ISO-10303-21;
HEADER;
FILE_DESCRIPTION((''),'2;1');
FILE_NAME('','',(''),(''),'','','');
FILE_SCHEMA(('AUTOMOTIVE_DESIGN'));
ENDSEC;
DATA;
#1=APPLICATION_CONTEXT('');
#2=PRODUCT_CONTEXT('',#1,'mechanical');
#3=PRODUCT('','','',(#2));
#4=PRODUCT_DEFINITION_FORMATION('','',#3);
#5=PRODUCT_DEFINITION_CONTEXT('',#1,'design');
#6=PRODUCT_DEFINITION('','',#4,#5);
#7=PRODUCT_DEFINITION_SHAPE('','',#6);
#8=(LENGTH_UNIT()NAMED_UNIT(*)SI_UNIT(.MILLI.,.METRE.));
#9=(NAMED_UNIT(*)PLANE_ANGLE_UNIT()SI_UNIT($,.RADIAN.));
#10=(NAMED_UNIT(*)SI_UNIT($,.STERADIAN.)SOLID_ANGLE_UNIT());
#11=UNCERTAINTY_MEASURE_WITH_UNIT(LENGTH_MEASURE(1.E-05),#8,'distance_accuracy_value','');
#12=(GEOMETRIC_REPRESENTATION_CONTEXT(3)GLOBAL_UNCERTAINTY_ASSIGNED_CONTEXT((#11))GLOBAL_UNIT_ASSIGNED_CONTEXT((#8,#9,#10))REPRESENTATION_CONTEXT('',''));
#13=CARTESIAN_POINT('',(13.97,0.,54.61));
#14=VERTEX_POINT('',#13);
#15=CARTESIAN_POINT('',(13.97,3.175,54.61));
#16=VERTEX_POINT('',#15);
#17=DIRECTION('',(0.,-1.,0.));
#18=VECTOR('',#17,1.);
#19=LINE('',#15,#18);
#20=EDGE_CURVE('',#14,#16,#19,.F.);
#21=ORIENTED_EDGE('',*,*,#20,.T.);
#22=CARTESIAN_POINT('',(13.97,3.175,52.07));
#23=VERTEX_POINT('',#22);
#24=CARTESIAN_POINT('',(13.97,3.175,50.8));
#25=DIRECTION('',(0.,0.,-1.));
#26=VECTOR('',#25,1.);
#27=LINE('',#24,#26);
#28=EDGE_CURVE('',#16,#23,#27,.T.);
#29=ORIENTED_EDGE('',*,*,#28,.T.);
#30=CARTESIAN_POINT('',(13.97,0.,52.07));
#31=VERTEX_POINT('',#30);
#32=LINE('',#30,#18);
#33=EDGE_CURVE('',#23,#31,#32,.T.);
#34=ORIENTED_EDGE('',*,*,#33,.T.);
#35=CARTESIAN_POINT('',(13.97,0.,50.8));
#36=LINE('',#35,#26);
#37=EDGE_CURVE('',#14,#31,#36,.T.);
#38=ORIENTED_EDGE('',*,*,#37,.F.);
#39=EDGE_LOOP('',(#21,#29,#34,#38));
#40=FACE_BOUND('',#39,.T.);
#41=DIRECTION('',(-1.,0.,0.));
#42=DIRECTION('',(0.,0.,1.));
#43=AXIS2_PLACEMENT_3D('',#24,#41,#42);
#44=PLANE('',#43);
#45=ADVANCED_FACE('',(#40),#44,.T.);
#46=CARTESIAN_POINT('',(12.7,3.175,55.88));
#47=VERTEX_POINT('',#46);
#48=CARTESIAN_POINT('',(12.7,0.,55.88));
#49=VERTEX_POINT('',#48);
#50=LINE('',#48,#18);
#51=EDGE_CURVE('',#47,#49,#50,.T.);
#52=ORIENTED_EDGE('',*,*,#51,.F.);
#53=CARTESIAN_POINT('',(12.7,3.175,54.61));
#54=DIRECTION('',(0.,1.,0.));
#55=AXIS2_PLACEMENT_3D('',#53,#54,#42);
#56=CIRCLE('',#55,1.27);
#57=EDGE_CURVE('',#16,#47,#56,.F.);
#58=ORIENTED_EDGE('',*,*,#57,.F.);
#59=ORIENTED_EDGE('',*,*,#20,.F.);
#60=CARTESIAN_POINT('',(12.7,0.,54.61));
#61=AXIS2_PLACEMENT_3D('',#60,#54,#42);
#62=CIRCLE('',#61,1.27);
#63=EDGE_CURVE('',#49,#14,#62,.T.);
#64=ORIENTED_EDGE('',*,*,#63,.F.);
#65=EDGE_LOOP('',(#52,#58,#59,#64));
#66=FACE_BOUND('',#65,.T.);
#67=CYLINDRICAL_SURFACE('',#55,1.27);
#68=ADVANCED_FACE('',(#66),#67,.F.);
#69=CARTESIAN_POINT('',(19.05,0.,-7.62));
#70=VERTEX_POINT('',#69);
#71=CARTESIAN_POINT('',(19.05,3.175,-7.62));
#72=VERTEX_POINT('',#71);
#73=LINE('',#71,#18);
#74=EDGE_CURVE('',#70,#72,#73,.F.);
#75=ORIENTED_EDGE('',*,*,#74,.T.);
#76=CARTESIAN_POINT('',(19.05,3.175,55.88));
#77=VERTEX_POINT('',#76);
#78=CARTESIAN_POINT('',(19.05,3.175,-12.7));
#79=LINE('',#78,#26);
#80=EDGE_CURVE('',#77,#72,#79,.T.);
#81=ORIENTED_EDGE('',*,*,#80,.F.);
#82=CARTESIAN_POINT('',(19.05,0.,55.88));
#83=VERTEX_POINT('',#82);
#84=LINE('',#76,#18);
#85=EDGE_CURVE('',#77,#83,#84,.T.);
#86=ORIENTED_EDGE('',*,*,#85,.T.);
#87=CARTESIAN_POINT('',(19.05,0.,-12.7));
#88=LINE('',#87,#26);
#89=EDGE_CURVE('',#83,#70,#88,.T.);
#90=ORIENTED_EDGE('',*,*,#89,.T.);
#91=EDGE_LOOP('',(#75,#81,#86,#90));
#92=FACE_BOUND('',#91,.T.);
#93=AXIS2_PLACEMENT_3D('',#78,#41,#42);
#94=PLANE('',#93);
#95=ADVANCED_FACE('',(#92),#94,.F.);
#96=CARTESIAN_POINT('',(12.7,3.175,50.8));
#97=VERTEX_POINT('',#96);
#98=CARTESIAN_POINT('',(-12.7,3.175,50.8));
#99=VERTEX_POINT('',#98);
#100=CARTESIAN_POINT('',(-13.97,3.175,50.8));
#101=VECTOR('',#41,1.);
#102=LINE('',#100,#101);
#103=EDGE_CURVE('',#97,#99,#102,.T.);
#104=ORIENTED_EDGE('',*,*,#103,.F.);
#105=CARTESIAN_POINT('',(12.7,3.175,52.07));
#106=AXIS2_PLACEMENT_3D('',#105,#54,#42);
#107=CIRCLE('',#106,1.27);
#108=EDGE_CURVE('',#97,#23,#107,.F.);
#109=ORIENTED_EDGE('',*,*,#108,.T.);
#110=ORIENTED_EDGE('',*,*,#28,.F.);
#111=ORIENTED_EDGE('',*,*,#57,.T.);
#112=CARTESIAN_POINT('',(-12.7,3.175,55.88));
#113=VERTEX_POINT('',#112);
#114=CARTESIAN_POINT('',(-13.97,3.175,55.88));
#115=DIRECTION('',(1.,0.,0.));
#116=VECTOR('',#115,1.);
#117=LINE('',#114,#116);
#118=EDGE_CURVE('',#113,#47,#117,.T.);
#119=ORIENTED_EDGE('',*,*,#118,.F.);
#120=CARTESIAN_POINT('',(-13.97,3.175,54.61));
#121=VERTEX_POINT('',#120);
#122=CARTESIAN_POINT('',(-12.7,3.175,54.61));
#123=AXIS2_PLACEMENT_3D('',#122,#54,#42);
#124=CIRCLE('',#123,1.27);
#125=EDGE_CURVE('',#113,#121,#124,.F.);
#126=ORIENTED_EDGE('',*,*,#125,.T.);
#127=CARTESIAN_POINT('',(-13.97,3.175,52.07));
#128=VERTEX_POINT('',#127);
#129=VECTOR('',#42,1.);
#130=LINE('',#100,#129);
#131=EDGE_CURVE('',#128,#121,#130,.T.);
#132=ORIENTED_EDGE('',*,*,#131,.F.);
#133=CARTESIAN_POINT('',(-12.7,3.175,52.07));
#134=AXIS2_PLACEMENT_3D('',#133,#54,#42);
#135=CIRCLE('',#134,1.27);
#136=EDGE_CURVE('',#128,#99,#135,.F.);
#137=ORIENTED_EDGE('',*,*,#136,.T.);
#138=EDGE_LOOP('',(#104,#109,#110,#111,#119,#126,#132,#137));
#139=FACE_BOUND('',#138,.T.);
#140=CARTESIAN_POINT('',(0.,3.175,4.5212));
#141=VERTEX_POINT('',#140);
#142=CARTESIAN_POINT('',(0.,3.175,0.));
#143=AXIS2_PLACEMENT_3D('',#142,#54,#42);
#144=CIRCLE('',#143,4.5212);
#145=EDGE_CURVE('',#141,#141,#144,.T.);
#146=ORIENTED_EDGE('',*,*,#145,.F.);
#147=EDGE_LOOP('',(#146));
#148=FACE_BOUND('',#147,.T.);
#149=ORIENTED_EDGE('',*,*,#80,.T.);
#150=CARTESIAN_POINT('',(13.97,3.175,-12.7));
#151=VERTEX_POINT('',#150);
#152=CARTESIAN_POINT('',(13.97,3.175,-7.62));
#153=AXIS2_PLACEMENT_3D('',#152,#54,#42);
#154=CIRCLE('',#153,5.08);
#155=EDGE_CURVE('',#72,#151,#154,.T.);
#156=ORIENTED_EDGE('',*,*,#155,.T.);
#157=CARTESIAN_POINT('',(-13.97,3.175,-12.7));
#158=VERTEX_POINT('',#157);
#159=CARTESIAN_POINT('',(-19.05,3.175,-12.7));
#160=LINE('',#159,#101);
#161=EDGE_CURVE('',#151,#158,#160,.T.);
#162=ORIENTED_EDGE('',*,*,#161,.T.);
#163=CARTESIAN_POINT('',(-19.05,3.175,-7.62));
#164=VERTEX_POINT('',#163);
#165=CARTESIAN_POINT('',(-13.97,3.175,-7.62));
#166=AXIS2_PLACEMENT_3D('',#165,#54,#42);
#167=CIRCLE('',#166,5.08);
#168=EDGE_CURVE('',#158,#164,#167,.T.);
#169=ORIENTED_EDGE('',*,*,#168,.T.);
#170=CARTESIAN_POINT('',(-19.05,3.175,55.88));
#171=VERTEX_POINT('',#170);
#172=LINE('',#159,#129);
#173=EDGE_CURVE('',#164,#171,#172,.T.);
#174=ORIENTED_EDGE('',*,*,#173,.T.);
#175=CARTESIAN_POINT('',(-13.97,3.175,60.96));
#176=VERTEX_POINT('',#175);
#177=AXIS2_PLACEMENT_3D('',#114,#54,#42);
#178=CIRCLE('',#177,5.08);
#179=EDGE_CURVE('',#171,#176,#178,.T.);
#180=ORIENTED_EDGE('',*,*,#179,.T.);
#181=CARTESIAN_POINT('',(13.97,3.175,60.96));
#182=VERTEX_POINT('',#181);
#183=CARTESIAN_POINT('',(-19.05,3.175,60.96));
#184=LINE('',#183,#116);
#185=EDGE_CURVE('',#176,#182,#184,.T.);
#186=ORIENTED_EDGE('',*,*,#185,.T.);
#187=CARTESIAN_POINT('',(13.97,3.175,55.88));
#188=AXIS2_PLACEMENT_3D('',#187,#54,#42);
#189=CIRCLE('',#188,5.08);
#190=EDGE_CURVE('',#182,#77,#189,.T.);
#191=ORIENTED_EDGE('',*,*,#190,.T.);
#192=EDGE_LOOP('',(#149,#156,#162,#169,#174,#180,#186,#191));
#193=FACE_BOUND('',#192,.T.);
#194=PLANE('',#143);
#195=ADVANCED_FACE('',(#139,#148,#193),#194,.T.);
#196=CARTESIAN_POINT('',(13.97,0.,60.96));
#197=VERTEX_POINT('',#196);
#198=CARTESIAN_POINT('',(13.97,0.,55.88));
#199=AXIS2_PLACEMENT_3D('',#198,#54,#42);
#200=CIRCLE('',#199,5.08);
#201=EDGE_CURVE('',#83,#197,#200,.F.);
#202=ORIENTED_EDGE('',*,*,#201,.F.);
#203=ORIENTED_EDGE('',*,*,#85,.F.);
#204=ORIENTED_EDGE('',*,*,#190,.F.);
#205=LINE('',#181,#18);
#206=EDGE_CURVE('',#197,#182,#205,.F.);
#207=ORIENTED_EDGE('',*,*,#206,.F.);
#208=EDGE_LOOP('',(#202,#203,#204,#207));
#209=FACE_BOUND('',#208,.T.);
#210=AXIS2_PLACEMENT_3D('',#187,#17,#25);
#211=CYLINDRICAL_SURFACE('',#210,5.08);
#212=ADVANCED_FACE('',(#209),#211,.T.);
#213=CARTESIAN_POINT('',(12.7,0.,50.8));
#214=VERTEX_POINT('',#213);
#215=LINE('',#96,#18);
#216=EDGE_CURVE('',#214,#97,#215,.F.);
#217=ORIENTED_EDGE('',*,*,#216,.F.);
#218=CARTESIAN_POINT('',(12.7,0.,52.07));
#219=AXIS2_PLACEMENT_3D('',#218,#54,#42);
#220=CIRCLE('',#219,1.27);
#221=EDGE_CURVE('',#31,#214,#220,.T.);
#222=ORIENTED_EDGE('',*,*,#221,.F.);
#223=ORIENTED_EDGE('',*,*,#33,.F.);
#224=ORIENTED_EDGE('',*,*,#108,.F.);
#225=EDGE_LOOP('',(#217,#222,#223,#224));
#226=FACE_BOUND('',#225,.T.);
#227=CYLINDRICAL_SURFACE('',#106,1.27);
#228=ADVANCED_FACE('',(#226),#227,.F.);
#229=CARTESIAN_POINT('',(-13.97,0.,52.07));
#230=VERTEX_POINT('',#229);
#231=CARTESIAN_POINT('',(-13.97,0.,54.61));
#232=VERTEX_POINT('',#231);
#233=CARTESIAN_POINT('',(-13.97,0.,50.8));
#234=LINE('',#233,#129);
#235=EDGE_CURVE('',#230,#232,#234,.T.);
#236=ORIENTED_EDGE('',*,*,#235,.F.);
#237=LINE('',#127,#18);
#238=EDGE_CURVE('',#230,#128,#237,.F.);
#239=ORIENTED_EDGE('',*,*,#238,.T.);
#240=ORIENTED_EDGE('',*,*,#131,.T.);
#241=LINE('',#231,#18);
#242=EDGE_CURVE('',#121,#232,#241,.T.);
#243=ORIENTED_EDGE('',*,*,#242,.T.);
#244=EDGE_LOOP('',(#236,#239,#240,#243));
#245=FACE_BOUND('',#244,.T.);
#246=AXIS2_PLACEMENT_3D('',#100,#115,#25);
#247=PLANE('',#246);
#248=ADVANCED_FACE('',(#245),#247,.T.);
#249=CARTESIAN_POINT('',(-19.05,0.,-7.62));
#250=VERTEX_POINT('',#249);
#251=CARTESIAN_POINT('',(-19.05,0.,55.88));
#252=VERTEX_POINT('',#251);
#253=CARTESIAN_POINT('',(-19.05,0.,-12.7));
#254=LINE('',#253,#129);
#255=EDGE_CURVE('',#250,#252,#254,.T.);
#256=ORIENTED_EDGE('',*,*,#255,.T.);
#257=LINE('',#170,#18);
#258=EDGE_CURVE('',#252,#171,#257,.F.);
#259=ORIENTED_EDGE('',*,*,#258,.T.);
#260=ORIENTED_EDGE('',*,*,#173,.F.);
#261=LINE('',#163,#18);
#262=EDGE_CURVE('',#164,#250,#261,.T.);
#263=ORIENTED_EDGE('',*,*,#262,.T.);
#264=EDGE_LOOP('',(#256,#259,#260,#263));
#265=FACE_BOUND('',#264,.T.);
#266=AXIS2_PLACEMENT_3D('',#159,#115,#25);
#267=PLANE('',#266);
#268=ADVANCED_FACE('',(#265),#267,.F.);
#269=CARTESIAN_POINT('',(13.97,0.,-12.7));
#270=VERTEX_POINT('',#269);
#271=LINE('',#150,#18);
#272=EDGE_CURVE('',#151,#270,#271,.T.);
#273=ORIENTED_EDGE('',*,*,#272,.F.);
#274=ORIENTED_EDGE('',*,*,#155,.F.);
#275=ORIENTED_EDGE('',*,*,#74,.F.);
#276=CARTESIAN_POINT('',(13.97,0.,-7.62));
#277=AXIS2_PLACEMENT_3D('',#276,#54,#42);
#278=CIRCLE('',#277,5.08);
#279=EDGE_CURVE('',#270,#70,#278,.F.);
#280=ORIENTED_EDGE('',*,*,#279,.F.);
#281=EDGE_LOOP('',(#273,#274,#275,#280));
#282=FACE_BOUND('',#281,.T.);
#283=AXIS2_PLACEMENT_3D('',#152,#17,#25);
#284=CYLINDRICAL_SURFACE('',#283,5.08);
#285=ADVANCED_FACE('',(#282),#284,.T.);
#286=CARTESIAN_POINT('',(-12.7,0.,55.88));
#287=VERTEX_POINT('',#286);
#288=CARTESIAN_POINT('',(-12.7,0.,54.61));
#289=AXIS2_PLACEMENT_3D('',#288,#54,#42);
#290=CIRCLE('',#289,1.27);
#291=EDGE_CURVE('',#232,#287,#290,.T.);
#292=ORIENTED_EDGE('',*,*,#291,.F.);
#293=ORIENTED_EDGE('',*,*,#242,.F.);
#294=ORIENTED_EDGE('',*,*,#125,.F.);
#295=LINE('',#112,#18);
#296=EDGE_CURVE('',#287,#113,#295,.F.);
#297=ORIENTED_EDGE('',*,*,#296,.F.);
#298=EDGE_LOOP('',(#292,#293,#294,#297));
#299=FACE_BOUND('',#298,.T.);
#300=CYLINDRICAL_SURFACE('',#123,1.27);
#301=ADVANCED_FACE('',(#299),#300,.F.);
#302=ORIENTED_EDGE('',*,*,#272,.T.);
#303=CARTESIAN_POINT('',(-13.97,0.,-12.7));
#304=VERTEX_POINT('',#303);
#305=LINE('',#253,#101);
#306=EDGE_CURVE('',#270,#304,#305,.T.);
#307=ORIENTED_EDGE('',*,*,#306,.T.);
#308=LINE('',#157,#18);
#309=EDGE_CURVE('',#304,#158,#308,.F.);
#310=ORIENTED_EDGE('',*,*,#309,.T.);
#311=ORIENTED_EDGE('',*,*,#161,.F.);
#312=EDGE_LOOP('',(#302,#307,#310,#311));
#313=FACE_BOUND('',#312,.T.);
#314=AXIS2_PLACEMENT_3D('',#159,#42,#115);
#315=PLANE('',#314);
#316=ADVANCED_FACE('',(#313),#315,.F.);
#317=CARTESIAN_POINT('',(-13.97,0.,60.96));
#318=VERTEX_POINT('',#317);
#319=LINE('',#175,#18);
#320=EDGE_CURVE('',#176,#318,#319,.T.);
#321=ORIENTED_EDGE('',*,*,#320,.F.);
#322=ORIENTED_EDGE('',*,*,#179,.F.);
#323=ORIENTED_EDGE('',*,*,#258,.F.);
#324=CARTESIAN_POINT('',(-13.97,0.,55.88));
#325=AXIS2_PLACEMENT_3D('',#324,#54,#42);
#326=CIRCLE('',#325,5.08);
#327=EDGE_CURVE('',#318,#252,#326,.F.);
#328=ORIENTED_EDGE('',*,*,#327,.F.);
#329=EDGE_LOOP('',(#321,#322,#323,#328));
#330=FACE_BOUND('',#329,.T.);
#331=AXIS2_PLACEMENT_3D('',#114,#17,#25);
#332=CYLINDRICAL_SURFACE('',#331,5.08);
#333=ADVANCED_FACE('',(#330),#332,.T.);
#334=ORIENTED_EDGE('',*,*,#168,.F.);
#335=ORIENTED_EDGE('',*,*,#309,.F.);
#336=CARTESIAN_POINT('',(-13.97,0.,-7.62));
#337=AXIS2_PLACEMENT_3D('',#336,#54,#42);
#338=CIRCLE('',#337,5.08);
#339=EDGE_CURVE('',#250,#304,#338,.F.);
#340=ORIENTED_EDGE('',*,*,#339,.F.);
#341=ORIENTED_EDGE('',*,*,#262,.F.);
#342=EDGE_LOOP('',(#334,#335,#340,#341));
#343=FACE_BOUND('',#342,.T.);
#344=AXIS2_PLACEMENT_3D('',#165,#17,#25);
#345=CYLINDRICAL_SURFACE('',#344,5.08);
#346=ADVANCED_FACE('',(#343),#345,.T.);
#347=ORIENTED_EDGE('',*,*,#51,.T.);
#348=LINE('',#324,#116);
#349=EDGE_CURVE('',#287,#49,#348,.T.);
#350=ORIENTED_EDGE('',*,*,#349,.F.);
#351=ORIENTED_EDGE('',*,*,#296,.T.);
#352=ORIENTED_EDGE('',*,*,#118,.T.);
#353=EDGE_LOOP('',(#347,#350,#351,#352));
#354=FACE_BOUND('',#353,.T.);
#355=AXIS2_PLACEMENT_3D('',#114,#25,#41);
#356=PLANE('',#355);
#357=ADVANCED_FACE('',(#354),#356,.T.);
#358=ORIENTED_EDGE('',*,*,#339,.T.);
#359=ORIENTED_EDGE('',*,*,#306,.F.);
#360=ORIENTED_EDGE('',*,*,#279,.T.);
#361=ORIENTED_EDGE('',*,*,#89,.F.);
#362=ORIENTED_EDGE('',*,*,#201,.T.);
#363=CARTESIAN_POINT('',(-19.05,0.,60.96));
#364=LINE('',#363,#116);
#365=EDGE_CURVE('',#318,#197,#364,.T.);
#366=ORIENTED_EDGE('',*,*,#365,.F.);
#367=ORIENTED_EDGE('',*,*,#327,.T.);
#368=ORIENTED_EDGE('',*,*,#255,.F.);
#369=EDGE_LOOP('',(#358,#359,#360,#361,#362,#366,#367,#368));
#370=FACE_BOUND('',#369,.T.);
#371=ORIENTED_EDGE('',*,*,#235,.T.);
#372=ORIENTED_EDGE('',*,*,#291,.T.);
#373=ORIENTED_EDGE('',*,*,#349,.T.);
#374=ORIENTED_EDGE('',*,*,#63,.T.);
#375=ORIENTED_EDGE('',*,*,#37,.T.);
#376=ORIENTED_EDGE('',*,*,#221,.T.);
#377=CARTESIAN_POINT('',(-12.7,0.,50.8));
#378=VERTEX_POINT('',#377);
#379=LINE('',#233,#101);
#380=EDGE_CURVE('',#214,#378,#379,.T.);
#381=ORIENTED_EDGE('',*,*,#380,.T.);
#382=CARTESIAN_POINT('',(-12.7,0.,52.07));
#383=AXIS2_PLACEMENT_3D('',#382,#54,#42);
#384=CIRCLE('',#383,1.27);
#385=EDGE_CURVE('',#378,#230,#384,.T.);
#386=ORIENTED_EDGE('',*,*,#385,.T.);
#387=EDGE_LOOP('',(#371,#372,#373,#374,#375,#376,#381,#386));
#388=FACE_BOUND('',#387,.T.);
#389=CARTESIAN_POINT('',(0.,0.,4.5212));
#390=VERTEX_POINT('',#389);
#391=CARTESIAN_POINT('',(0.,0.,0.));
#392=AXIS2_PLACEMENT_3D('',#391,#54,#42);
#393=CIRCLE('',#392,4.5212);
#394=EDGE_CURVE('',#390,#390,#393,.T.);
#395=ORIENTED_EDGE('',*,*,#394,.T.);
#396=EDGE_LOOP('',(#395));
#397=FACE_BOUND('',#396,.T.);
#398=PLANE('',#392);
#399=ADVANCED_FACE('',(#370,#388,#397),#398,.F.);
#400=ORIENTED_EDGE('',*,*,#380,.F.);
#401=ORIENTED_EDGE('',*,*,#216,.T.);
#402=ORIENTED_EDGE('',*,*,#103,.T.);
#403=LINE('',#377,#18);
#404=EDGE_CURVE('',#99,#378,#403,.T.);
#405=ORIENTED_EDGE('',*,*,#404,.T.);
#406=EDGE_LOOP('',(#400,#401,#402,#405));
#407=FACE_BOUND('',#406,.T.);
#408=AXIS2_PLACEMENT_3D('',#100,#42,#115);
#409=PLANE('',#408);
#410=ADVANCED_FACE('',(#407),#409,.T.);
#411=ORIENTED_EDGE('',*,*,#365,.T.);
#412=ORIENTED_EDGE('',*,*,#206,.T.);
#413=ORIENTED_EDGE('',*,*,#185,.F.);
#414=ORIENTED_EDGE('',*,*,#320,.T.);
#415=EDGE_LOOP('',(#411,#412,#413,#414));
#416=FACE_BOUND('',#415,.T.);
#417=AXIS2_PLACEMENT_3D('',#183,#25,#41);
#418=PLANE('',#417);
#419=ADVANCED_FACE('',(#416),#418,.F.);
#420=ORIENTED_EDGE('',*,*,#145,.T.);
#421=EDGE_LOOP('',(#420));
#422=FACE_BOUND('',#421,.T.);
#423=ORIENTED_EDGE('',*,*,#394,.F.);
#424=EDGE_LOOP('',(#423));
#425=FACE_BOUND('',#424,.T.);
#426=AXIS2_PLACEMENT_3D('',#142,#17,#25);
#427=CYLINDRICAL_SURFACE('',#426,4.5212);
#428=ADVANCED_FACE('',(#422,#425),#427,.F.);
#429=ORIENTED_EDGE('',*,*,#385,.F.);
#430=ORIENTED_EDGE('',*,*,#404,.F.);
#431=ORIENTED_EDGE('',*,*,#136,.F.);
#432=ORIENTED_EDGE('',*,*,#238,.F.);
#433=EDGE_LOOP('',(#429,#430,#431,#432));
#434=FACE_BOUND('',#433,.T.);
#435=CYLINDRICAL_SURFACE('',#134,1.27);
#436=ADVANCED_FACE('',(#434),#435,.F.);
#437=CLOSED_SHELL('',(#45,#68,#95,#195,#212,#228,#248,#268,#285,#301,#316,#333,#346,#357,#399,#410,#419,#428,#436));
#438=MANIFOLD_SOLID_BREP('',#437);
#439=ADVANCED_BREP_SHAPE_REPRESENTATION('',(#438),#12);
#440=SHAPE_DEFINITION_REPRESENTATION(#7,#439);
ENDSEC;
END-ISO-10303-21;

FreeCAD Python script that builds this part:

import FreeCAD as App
import Part
import Sketcher
Q = App.Units.Quantity


def edges_at(feature, points):
    """Names of the edges that pass closest to the given points."""
    edges = feature.Shape.Edges
    near = lambda p: min(range(len(edges)), key=lambda i: edges[i].distToShape(Part.Vertex(*p))[0])
    return sorted({f"Edge{near(p) + 1}" for p in points})

doc = App.newDocument("Part")
body = doc.addObject("PartDesign::Body", "Body")

# Sketch on XZ plane
sketch1 = body.newObject("Sketcher::SketchObject", "Sketch")
sketch1.AttachmentSupport = (doc.getObject("XZ_Plane"), [""])
sketch1.MapMode = "FlatFace"
sketch1.addGeometry([
    Part.LineSegment(App.Vector(-19.1, -12.7, 0), App.Vector(-19.1, 61, 0)),  # 0
    Part.LineSegment(App.Vector(-19.1, 61, 0), App.Vector(19.1, 61, 0)),  # 1
    Part.LineSegment(App.Vector(19.1, 61, 0), App.Vector(19.1, -12.7, 0)),  # 2
    Part.LineSegment(App.Vector(19.1, -12.7, 0), App.Vector(-19.1, -12.7, 0)),  # 3
    Part.LineSegment(App.Vector(14, 55.9, 0), App.Vector(-14, 55.9, 0)),  # 4
    Part.LineSegment(App.Vector(-14, 55.9, 0), App.Vector(-14, 50.8, 0)),  # 5
    Part.LineSegment(App.Vector(-14, 50.8, 0), App.Vector(14, 50.8, 0)),  # 6
    Part.LineSegment(App.Vector(14, 50.8, 0), App.Vector(14, 55.9, 0)),  # 7
    Part.Circle(App.Vector(0, 0, 0), App.Vector(0, 0, 1), 4.5),  # 8
], False)
sketch1.addConstraint([
    Sketcher.Constraint("Coincident", 0, 2, 1, 1),
    Sketcher.Constraint("Coincident", 1, 2, 2, 1),
    Sketcher.Constraint("Coincident", 2, 2, 3, 1),
    Sketcher.Constraint("Coincident", 3, 2, 0, 1),
    Sketcher.Constraint("Coincident", 4, 2, 5, 1),
    Sketcher.Constraint("Coincident", 5, 2, 6, 1),
    Sketcher.Constraint("Coincident", 6, 2, 7, 1),
    Sketcher.Constraint("Coincident", 7, 2, 4, 1),
    Sketcher.Constraint("Vertical", 0),
    Sketcher.Constraint("Horizontal", 1),
    Sketcher.Constraint("Vertical", 2),
    Sketcher.Constraint("Horizontal", 3),
    Sketcher.Constraint("Horizontal", 4),
    Sketcher.Constraint("Vertical", 5),
    Sketcher.Constraint("Horizontal", 6),
    Sketcher.Constraint("Vertical", 7),
    Sketcher.Constraint("Coincident", 8, 3, -1, 1),
    Sketcher.Constraint("Diameter", 8, Q("0.356 in")),
    Sketcher.Constraint("DistanceX", 1, 1, 1, 2, Q("1.5 in")),
    Sketcher.Constraint("DistanceX", 4, 2, 4, 1, Q("1.1 in")),
    Sketcher.Constraint("DistanceY", 0, 1, 0, 2, Q("2.9 in")),
    Sketcher.Constraint("DistanceY", 5, 2, 5, 1, Q("0.2 in")),
    Sketcher.Constraint("DistanceY", -1, 1, 5, 2, Q("2 in")),
    Sketcher.Constraint("DistanceY", -1, 1, 0, 2, Q("2.4 in")),
    Sketcher.Constraint("DistanceX", 0, 2, 4, 2, Q("0.2 in")),
    Sketcher.Constraint("DistanceX", 0, 2, -1, 1, Q("0.75 in")),
])
pad1 = body.newObject("PartDesign::Pad", "Pad")
pad1.Profile = sketch1
pad1.Length = Q("0.125 in")
pad1.Reversed = True
doc.recompute()

fillet = body.newObject("PartDesign::Fillet", "Fillet")
fillet.Base = (pad1, edges_at(pad1, [
    (-19.05, 1.587, -12.7),
    (19.05, 1.587, -12.7),
    (19.05, 1.587, 60.96),
    (-19.05, 1.587, 60.96),
]))
fillet.Radius = Q("0.2 in")
doc.recompute()

fillet2 = body.newObject("PartDesign::Fillet", "Fillet001")
fillet2.Base = (fillet, edges_at(fillet, [
    (-13.97, 1.587, 50.8),
    (-13.97, 1.587, 55.88),
    (13.97, 1.587, 55.88),
    (13.97, 1.587, 50.8),
]))
fillet2.Radius = Q("0.05 in")

doc.recompute()
